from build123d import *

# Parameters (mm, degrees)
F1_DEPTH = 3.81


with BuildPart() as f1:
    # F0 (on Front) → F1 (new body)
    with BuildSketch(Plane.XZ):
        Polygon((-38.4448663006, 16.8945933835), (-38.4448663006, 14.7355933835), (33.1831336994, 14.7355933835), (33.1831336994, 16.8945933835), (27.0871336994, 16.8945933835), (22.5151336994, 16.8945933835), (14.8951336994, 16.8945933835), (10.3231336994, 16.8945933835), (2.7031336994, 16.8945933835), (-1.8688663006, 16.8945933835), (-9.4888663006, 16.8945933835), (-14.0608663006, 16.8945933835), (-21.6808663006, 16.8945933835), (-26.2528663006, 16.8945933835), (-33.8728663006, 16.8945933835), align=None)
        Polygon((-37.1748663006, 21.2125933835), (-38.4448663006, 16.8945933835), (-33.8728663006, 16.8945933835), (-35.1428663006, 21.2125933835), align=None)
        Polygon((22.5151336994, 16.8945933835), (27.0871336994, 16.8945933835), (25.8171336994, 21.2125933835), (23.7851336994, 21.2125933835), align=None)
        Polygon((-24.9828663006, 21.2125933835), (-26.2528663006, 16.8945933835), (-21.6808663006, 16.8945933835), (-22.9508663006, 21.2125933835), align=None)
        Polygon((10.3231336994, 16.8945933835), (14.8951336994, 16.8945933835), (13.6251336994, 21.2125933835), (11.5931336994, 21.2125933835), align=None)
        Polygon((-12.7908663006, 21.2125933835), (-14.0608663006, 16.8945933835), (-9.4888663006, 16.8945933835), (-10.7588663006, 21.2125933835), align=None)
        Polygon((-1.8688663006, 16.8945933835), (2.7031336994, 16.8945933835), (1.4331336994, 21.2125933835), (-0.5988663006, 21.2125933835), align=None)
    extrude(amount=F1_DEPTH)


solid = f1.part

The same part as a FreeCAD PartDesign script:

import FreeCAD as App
import Part
import Sketcher
from FreeCAD import Vector
Q = App.Units.Quantity

doc = App.newDocument("Part")
body = doc.addObject("PartDesign::Body", "Body")

# Sketch on XZ plane
sketch1 = doc.addObject("Sketcher::SketchObject", "Sketch")
body.addObject(sketch1)
sketch1.AttachmentSupport = (doc.XZ_Plane, [""])
sketch1.MapMode = "FlatFace"
sketch1.addGeometry([
    Part.LineSegment(Vector(-38.4, 16.9, 0), Vector(-38.4, 14.7, 0)),  # 0
    Part.LineSegment(Vector(-38.4, 14.7, 0), Vector(33.2, 14.7, 0)),  # 1
    Part.LineSegment(Vector(33.2, 14.7, 0), Vector(33.2, 16.9, 0)),  # 2
    Part.LineSegment(Vector(33.2, 16.9, 0), Vector(27.1, 16.9, 0)),  # 3
    Part.LineSegment(Vector(27.1, 16.9, 0), Vector(25.8, 21.2, 0)),  # 4
    Part.LineSegment(Vector(25.8, 21.2, 0), Vector(23.8, 21.2, 0)),  # 5
    Part.LineSegment(Vector(23.8, 21.2, 0), Vector(22.5, 16.9, 0)),  # 6
    Part.LineSegment(Vector(22.5, 16.9, 0), Vector(14.9, 16.9, 0)),  # 7
    Part.LineSegment(Vector(14.9, 16.9, 0), Vector(13.6, 21.2, 0)),  # 8
    Part.LineSegment(Vector(13.6, 21.2, 0), Vector(11.6, 21.2, 0)),  # 9
    Part.LineSegment(Vector(11.6, 21.2, 0), Vector(10.3, 16.9, 0)),  # 10
    Part.LineSegment(Vector(10.3, 16.9, 0), Vector(2.7, 16.9, 0)),  # 11
    Part.LineSegment(Vector(2.7, 16.9, 0), Vector(1.4, 21.2, 0)),  # 12
    Part.LineSegment(Vector(1.4, 21.2, 0), Vector(-0.6, 21.2, 0)),  # 13
    Part.LineSegment(Vector(-0.6, 21.2, 0), Vector(-1.9, 16.9, 0)),  # 14
    Part.LineSegment(Vector(-1.9, 16.9, 0), Vector(-9.5, 16.9, 0)),  # 15
    Part.LineSegment(Vector(-9.5, 16.9, 0), Vector(-10.8, 21.2, 0)),  # 16
    Part.LineSegment(Vector(-10.8, 21.2, 0), Vector(-12.8, 21.2, 0)),  # 17
    Part.LineSegment(Vector(-12.8, 21.2, 0), Vector(-14.1, 16.9, 0)),  # 18
    Part.LineSegment(Vector(-14.1, 16.9, 0), Vector(-21.7, 16.9, 0)),  # 19
    Part.LineSegment(Vector(-21.7, 16.9, 0), Vector(-23, 21.2, 0)),  # 20
    Part.LineSegment(Vector(-23, 21.2, 0), Vector(-25, 21.2, 0)),  # 21
    Part.LineSegment(Vector(-25, 21.2, 0), Vector(-26.3, 16.9, 0)),  # 22
    Part.LineSegment(Vector(-26.3, 16.9, 0), Vector(-33.9, 16.9, 0)),  # 23
    Part.LineSegment(Vector(-33.9, 16.9, 0), Vector(-35.1, 21.2, 0)),  # 24
    Part.LineSegment(Vector(-35.1, 21.2, 0), Vector(-37.2, 21.2, 0)),  # 25
    Part.LineSegment(Vector(-37.2, 21.2, 0), Vector(-38.4, 16.9, 0)),  # 26
], False)
sketch1.addConstraint([
    Sketcher.Constraint("Coincident", 0, 2, 1, 1),
    Sketcher.Constraint("Coincident", 1, 2, 2, 1),
    Sketcher.Constraint("Coincident", 2, 2, 3, 1),
    Sketcher.Constraint("Coincident", 3, 2, 4, 1),
    Sketcher.Constraint("Coincident", 4, 2, 5, 1),
    Sketcher.Constraint("Coincident", 5, 2, 6, 1),
    Sketcher.Constraint("Coincident", 6, 2, 7, 1),
    Sketcher.Constraint("Coincident", 7, 2, 8, 1),
    Sketcher.Constraint("Coincident", 8, 2, 9, 1),
    Sketcher.Constraint("Coincident", 9, 2, 10, 1),
    Sketcher.Constraint("Coincident", 10, 2, 11, 1),
    Sketcher.Constraint("Coincident", 11, 2, 12, 1),
    Sketcher.Constraint("Coincident", 12, 2, 13, 1),
    Sketcher.Constraint("Coincident", 13, 2, 14, 1),
    Sketcher.Constraint("Coincident", 14, 2, 15, 1),
    Sketcher.Constraint("Coincident", 15, 2, 16, 1),
    Sketcher.Constraint("Coincident", 16, 2, 17, 1),
    Sketcher.Constraint("Coincident", 17, 2, 18, 1),
    Sketcher.Constraint("Coincident", 18, 2, 19, 1),
    Sketcher.Constraint("Coincident", 19, 2, 20, 1),
    Sketcher.Constraint("Coincident", 20, 2, 21, 1),
    Sketcher.Constraint("Coincident", 21, 2, 22, 1),
    Sketcher.Constraint("Coincident", 22, 2, 23, 1),
    Sketcher.Constraint("Coincident", 23, 2, 24, 1),
    Sketcher.Constraint("Coincident", 24, 2, 25, 1),
    Sketcher.Constraint("Coincident", 25, 2, 26, 1),
    Sketcher.Constraint("Coincident", 26, 2, 0, 1),
    Sketcher.Constraint("Vertical", 0),
    Sketcher.Constraint("Horizontal", 1),
    Sketcher.Constraint("Vertical", 2),
    Sketcher.Constraint("Horizontal", 3),
    Sketcher.Constraint("Horizontal", 5),
    Sketcher.Constraint("Horizontal", 7),
    Sketcher.Constraint("Horizontal", 9),
    Sketcher.Constraint("Horizontal", 11),
    Sketcher.Constraint("Horizontal", 13),
    Sketcher.Constraint("Horizontal", 15),
    Sketcher.Constraint("Horizontal", 17),
    Sketcher.Constraint("Horizontal", 19),
    Sketcher.Constraint("Horizontal", 21),
    Sketcher.Constraint("Horizontal", 23),
    Sketcher.Constraint("Horizontal", 25),
    Sketcher.Constraint("Parallel", 4, 8),
    Sketcher.Constraint("Parallel", 6, 10),
    Sketcher.Constraint("Parallel", 8, 12),
    Sketcher.Constraint("Parallel", 10, 14),
    Sketcher.Constraint("Parallel", 12, 16),
    Sketcher.Constraint("Parallel", 14, 18),
    Sketcher.Constraint("Parallel", 16, 20),
    Sketcher.Constraint("Parallel", 18, 22),
    Sketcher.Constraint("Parallel", 20, 24),
    Sketcher.Constraint("Parallel", 22, 26),
    Sketcher.Constraint("Horizontal", 3, 2, 6, 2),
    Sketcher.Constraint("Horizontal", 5, 2, 8, 2),
    Sketcher.Constraint("Horizontal", 7, 2, 10, 2),
    Sketcher.Constraint("Horizontal", 9, 2, 12, 2),
    Sketcher.Constraint("Horizontal", 11, 2, 14, 2),
    Sketcher.Constraint("Horizontal", 13, 2, 16, 2),
    Sketcher.Constraint("Horizontal", 15, 2, 18, 2),
    Sketcher.Constraint("Horizontal", 17, 2, 20, 2),
    Sketcher.Constraint("Horizontal", 19, 2, 22, 2),
    Sketcher.Constraint("Horizontal", 21, 2, 24, 2),
    Sketcher.Constraint("Horizontal", 23, 2, 26, 2),
    Sketcher.Constraint("Equal", 5, 9),
    Sketcher.Constraint("Equal", 7, 11),
    Sketcher.Constraint("Equal", 9, 13),
    Sketcher.Constraint("Equal", 11, 15),
    Sketcher.Constraint("Equal", 13, 17),
    Sketcher.Constraint("Equal", 15, 19),
    Sketcher.Constraint("Equal", 17, 21),
    Sketcher.Constraint("Equal", 19, 23),
    Sketcher.Constraint("Equal", 21, 25),
    Sketcher.Constraint("Equal", 4, 6),
    Sketcher.Constraint("DistanceX", 7, 2, 7, 1, Q("0.3 in")),
    Sketcher.Constraint("DistanceX", 1, 1, 1, 2, Q("2.82 in")),
    Sketcher.Constraint("DistanceX", 3, 2, 3, 1, Q("0.24 in")),
    Sketcher.Constraint("DistanceX", 5, 2, 5, 1, Q("0.08 in")),
    Sketcher.Constraint("DistanceY", 0, 2, 0, 1, Q("0.085 in")),
    Sketcher.Constraint("DistanceY", 3, 2, 4, 2, Q("0.17 in")),
    Sketcher.Constraint("DistanceX", 0, 2, -1, 1, Q("38.444866 mm")),
    Sketcher.Constraint("DistanceY", -1, 1, 0, 2, Q("14.735593 mm")),
])
pad1 = doc.addObject("PartDesign::Pad", "Pad")
body.addObject(pad1)
pad1.Profile = sketch1
pad1.Length = Q("0.15 in")

doc.recompute()
